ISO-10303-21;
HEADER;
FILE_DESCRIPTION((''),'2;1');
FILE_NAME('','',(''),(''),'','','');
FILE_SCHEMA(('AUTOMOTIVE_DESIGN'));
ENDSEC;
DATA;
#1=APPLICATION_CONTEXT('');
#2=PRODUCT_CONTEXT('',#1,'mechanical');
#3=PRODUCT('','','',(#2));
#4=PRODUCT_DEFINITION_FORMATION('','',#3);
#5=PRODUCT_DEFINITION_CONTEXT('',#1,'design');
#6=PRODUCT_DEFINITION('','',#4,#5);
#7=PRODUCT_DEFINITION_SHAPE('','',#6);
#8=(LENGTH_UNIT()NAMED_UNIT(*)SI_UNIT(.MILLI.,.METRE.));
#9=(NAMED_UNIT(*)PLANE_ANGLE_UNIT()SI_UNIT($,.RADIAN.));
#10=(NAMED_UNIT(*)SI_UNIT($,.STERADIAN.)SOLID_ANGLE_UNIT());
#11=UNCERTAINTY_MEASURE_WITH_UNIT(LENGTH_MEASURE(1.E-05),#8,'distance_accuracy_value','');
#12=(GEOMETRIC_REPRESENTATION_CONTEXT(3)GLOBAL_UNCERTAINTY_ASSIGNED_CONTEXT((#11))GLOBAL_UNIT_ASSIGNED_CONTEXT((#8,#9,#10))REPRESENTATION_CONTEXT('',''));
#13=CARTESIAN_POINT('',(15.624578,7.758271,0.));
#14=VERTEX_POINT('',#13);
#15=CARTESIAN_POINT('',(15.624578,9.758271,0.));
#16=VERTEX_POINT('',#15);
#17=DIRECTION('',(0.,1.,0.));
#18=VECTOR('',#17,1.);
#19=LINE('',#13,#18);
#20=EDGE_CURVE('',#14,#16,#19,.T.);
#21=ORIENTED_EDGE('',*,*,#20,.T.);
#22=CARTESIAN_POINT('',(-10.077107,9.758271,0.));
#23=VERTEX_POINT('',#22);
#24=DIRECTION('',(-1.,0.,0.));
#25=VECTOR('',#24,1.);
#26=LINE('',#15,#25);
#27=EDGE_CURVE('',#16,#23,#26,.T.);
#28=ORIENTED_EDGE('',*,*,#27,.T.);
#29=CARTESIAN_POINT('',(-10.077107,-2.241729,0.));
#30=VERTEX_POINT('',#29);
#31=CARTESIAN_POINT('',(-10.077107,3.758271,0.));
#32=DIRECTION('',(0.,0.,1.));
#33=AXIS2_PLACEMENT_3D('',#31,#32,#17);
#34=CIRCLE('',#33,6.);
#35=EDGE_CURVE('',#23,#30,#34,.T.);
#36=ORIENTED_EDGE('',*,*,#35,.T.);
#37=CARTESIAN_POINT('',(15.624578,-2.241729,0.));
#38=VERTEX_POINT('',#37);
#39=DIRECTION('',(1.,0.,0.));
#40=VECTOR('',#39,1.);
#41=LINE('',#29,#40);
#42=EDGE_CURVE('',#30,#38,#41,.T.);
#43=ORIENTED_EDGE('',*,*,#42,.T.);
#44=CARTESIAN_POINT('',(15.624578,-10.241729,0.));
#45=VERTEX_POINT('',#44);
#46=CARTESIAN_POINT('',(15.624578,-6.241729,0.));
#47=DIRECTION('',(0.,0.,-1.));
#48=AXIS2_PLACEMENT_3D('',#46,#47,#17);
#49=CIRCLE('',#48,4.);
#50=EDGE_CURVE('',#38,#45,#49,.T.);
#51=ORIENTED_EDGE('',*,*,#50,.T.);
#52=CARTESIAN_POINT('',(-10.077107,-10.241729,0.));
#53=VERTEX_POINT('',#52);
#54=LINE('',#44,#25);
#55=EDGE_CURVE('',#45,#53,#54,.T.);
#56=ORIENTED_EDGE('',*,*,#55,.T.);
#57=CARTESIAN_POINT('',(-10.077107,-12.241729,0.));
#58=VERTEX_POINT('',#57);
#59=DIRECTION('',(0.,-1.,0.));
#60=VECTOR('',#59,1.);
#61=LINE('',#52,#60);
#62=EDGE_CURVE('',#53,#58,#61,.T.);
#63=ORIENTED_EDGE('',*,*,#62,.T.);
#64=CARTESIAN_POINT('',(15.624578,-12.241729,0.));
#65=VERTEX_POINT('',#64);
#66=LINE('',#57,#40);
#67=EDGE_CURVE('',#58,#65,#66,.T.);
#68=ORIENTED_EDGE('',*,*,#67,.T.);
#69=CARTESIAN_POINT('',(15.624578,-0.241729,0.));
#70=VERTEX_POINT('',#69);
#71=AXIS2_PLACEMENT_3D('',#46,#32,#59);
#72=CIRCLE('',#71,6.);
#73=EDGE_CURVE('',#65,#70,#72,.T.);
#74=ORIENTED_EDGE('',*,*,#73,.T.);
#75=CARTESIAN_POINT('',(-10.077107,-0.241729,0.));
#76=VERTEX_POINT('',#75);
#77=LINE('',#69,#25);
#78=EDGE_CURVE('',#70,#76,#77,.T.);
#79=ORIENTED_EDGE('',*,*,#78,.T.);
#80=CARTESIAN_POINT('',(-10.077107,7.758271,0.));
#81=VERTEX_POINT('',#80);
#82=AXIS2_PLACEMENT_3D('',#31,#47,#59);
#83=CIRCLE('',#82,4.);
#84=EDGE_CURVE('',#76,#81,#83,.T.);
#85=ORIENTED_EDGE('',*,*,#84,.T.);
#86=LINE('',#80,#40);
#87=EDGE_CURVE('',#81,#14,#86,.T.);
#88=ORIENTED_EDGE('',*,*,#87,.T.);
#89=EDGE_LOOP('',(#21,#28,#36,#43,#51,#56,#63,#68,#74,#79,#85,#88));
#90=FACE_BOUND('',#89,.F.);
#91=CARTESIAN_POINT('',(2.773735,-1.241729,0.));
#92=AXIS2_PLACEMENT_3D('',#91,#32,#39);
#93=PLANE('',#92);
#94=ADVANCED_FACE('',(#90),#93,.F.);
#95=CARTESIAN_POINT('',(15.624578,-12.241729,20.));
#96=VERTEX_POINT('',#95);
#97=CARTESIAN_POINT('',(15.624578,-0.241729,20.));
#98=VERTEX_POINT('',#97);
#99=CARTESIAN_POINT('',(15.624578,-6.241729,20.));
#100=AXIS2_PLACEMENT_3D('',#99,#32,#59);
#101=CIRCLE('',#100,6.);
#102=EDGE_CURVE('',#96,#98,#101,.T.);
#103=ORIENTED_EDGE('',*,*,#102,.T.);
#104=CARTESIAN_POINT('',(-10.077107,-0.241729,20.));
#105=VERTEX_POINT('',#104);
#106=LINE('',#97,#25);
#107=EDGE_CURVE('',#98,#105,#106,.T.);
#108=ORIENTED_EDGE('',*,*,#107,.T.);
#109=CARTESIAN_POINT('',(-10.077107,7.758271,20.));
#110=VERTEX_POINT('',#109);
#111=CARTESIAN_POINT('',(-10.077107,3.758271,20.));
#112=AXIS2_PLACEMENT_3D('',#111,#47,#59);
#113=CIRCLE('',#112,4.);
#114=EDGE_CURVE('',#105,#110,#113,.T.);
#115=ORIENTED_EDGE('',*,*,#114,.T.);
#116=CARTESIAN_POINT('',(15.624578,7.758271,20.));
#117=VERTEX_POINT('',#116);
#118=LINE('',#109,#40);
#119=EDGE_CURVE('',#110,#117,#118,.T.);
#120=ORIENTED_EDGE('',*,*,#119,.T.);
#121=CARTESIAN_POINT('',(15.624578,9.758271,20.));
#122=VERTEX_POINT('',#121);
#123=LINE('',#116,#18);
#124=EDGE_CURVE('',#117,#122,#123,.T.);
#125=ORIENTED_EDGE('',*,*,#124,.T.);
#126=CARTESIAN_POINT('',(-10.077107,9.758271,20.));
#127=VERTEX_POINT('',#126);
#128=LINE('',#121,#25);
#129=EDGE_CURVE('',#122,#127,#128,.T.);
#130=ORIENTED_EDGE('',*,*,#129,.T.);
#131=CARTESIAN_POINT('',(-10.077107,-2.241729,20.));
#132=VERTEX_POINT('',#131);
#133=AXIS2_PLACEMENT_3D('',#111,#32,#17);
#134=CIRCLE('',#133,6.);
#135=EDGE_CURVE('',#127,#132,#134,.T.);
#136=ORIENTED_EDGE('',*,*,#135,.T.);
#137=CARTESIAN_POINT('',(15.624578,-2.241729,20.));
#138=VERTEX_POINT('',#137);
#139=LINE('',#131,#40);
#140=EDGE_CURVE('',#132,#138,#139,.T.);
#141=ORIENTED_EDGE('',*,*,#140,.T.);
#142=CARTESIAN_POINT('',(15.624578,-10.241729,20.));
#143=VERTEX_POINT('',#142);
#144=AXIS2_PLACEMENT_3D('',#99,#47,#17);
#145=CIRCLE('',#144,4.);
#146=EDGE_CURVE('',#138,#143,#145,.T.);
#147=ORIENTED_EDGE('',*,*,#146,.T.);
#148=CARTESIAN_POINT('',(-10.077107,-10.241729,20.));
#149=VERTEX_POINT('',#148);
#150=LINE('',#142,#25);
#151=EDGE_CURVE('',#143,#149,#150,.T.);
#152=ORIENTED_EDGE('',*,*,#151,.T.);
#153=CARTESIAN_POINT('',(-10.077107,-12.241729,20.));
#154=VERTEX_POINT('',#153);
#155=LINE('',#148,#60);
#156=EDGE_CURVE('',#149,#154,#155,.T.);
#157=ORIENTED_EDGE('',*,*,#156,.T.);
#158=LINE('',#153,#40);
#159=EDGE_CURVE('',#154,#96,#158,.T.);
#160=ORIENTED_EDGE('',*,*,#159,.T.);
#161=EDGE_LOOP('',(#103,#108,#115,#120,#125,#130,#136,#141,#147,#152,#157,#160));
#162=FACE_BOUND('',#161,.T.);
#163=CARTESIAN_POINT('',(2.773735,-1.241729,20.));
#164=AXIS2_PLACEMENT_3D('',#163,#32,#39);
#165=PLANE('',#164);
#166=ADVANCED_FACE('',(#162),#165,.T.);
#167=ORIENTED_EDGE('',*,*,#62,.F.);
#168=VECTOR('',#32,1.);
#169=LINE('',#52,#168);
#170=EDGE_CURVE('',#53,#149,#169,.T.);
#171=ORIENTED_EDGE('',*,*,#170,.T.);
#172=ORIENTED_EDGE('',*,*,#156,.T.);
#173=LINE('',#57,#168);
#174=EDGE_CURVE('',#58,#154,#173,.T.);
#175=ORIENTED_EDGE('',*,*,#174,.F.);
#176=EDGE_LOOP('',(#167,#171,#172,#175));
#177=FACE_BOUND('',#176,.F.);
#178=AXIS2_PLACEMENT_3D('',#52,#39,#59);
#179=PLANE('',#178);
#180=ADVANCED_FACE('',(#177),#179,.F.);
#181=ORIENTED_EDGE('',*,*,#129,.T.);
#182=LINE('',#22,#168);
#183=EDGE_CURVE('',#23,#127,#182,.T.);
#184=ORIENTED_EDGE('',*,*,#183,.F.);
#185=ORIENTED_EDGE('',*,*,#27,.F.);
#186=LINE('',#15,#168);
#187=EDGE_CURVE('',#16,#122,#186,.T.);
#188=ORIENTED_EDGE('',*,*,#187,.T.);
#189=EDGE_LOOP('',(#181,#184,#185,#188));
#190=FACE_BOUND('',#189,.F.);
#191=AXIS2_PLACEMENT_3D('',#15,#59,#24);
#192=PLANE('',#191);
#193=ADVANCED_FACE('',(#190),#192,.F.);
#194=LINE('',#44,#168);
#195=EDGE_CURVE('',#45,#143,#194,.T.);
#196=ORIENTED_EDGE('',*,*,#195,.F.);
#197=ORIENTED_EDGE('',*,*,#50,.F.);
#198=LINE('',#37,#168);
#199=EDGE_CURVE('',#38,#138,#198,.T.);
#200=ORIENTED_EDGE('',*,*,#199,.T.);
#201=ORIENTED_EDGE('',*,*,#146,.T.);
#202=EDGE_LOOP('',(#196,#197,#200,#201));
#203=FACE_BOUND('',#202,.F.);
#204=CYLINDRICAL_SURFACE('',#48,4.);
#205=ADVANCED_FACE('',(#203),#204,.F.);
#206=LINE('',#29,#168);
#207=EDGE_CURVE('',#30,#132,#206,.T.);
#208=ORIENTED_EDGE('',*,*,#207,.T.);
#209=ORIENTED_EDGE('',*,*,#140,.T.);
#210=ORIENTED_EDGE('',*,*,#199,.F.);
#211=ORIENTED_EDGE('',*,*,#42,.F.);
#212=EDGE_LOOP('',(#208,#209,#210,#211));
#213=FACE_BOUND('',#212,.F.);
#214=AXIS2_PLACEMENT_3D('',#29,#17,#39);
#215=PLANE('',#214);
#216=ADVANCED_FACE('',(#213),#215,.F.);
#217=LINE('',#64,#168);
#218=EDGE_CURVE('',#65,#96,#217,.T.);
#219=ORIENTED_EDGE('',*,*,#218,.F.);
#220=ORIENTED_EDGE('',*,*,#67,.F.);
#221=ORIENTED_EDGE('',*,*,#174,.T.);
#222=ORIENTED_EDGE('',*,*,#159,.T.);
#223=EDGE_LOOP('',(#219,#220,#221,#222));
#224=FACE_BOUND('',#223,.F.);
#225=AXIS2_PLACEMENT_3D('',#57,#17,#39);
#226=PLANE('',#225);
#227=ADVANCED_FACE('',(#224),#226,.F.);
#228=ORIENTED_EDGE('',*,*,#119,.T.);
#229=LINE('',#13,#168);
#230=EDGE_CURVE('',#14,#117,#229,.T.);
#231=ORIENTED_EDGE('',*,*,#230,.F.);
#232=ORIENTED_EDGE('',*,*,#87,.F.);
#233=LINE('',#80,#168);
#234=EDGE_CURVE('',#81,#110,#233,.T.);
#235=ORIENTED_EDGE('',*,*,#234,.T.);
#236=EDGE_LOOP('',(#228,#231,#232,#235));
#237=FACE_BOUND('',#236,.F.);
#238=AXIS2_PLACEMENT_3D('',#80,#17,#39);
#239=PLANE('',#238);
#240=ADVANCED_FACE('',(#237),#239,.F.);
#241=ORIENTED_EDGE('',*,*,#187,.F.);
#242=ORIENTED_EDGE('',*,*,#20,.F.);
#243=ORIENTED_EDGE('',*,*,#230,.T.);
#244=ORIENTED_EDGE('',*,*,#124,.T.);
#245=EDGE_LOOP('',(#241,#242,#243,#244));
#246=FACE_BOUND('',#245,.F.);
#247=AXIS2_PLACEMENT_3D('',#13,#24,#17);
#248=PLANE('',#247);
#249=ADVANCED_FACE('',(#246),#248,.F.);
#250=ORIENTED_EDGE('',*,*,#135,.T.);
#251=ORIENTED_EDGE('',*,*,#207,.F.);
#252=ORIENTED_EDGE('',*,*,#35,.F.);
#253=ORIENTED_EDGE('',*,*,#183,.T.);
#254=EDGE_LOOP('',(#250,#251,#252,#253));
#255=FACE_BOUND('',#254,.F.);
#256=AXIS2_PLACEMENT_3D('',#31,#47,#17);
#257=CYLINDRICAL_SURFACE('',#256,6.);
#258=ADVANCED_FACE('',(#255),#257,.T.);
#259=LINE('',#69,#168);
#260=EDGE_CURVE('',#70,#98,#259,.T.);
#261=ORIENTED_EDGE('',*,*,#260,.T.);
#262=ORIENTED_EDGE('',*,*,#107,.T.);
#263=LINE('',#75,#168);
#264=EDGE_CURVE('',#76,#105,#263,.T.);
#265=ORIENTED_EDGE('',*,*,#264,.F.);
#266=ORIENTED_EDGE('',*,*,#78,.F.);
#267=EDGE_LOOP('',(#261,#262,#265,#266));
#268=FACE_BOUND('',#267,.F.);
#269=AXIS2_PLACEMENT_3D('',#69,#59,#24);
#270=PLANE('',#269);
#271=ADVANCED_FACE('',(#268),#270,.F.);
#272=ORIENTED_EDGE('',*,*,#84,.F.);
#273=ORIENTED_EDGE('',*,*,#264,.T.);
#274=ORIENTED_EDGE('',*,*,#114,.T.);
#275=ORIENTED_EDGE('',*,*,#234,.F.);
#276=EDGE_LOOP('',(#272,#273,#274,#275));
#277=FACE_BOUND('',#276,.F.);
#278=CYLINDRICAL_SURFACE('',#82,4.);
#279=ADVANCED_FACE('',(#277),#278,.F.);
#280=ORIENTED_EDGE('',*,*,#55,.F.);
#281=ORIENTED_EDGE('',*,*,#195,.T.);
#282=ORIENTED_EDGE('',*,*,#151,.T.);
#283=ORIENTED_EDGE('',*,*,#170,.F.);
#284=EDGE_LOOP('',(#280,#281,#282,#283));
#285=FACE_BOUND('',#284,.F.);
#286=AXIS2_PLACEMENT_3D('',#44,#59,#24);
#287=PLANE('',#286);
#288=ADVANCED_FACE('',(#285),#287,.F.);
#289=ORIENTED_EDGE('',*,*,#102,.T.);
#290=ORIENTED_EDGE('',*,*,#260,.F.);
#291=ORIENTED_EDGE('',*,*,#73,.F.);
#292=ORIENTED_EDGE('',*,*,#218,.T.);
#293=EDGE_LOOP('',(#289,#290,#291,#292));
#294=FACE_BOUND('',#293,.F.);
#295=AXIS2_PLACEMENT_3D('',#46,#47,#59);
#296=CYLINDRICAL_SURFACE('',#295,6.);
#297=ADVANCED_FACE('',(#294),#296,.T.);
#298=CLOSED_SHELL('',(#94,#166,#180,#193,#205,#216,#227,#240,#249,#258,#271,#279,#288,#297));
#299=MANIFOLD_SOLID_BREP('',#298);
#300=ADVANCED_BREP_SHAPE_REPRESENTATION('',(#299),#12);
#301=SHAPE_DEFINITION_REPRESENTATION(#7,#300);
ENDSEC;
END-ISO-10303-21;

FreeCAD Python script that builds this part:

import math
import FreeCAD as App
import Part
import Sketcher
from FreeCAD import Vector

doc = App.newDocument("Part")
body = doc.addObject("PartDesign::Body", "Body")

# Sketch on XY plane
sketch1 = body.newObject("Sketcher::SketchObject", "Sketch")
sketch1.AttachmentSupport = (doc.getObject("XY_Plane"), [""])
sketch1.MapMode = "FlatFace"
sketch1.addGeometry([
    Part.ArcOfCircle(Part.Circle(Vector(-10.077107, 3.758271, 0), Vector(0, 0, 1), 4), math.radians(90), math.radians(270)),  # 0
    Part.LineSegment(Vector(-10.077107, 7.758271, 0), Vector(15.624578, 7.758271, 0)),  # 1
    Part.LineSegment(Vector(15.624578, 7.758271, 0), Vector(15.624578, 9.758271, 0)),  # 2
    Part.LineSegment(Vector(15.624578, 9.758271, 0), Vector(-10.077107, 9.758271, 0)),  # 3
    Part.ArcOfCircle(Part.Circle(Vector(-10.077107, 3.758271, 0), Vector(0, 0, 1), 6), math.radians(90), math.radians(270)),  # 4
    Part.LineSegment(Vector(-10.077107, -2.241729, 0), Vector(15.624578, -2.241729, 0)),  # 5
    Part.ArcOfCircle(Part.Circle(Vector(15.624578, -6.241729, 0), Vector(0, 0, 1), 4), math.radians(-90), math.radians(90)),  # 6
    Part.LineSegment(Vector(15.624578, -10.241729, 0), Vector(-10.077107, -10.241729, 0)),  # 7
    Part.LineSegment(Vector(-10.077107, -10.241729, 0), Vector(-10.077107, -12.241729, 0)),  # 8
    Part.LineSegment(Vector(-10.077107, -12.241729, 0), Vector(15.624578, -12.241729, 0)),  # 9
    Part.ArcOfCircle(Part.Circle(Vector(15.624578, -6.241729, 0), Vector(0, 0, 1), 6), math.radians(-90), math.radians(90)),  # 10
    Part.LineSegment(Vector(15.624578, -0.241729, 0), Vector(-10.077107, -0.241729, 0)),  # 11
], False)
sketch1.addConstraint([
    Sketcher.Constraint("Tangent", 0, 1, 1, 1),
    Sketcher.Constraint("Coincident", 1, 2, 2, 1),
    Sketcher.Constraint("Coincident", 2, 2, 3, 1),
    Sketcher.Constraint("Tangent", 3, 2, 4, 1),
    Sketcher.Constraint("Tangent", 4, 2, 5, 1),
    Sketcher.Constraint("Tangent", 5, 2, 6, 2),
    Sketcher.Constraint("Tangent", 6, 1, 7, 1),
    Sketcher.Constraint("Coincident", 7, 2, 8, 1),
    Sketcher.Constraint("Coincident", 8, 2, 9, 1),
    Sketcher.Constraint("Tangent", 9, 2, 10, 1),
    Sketcher.Constraint("Tangent", 10, 2, 11, 1),
    Sketcher.Constraint("Tangent", 11, 2, 0, 2),
    Sketcher.Constraint("Horizontal", 1),
    Sketcher.Constraint("Vertical", 2),
    Sketcher.Constraint("Horizontal", 3),
    Sketcher.Constraint("Horizontal", 5),
    Sketcher.Constraint("Horizontal", 7),
    Sketcher.Constraint("Vertical", 8),
    Sketcher.Constraint("Horizontal", 9),
    Sketcher.Constraint("Horizontal", 11),
    Sketcher.Constraint("Coincident", 4, 3, 0, 3),
    Sketcher.Constraint("Coincident", 10, 3, 6, 3),
    Sketcher.Constraint("Equal", 0, 6),
    Sketcher.Constraint("Vertical", 10, 3, 1, 2),
    Sketcher.Constraint("Vertical", 4, 2, 7, 2),
    Sketcher.Constraint("Radius", 0, 4.0),
    Sketcher.Constraint("Radius", 4, 6.0),
    Sketcher.Constraint("DistanceX", 1, 1, 1, 2, 25.701685),
    Sketcher.Constraint("DistanceY", -1, 1, 0, 3, 3.758271),
    Sketcher.Constraint("DistanceX", 0, 3, -1, 1, 10.077107),
])
pad1 = body.newObject("PartDesign::Pad", "Pad")
pad1.Profile = sketch1
pad1.Length = 20

doc.recompute()
